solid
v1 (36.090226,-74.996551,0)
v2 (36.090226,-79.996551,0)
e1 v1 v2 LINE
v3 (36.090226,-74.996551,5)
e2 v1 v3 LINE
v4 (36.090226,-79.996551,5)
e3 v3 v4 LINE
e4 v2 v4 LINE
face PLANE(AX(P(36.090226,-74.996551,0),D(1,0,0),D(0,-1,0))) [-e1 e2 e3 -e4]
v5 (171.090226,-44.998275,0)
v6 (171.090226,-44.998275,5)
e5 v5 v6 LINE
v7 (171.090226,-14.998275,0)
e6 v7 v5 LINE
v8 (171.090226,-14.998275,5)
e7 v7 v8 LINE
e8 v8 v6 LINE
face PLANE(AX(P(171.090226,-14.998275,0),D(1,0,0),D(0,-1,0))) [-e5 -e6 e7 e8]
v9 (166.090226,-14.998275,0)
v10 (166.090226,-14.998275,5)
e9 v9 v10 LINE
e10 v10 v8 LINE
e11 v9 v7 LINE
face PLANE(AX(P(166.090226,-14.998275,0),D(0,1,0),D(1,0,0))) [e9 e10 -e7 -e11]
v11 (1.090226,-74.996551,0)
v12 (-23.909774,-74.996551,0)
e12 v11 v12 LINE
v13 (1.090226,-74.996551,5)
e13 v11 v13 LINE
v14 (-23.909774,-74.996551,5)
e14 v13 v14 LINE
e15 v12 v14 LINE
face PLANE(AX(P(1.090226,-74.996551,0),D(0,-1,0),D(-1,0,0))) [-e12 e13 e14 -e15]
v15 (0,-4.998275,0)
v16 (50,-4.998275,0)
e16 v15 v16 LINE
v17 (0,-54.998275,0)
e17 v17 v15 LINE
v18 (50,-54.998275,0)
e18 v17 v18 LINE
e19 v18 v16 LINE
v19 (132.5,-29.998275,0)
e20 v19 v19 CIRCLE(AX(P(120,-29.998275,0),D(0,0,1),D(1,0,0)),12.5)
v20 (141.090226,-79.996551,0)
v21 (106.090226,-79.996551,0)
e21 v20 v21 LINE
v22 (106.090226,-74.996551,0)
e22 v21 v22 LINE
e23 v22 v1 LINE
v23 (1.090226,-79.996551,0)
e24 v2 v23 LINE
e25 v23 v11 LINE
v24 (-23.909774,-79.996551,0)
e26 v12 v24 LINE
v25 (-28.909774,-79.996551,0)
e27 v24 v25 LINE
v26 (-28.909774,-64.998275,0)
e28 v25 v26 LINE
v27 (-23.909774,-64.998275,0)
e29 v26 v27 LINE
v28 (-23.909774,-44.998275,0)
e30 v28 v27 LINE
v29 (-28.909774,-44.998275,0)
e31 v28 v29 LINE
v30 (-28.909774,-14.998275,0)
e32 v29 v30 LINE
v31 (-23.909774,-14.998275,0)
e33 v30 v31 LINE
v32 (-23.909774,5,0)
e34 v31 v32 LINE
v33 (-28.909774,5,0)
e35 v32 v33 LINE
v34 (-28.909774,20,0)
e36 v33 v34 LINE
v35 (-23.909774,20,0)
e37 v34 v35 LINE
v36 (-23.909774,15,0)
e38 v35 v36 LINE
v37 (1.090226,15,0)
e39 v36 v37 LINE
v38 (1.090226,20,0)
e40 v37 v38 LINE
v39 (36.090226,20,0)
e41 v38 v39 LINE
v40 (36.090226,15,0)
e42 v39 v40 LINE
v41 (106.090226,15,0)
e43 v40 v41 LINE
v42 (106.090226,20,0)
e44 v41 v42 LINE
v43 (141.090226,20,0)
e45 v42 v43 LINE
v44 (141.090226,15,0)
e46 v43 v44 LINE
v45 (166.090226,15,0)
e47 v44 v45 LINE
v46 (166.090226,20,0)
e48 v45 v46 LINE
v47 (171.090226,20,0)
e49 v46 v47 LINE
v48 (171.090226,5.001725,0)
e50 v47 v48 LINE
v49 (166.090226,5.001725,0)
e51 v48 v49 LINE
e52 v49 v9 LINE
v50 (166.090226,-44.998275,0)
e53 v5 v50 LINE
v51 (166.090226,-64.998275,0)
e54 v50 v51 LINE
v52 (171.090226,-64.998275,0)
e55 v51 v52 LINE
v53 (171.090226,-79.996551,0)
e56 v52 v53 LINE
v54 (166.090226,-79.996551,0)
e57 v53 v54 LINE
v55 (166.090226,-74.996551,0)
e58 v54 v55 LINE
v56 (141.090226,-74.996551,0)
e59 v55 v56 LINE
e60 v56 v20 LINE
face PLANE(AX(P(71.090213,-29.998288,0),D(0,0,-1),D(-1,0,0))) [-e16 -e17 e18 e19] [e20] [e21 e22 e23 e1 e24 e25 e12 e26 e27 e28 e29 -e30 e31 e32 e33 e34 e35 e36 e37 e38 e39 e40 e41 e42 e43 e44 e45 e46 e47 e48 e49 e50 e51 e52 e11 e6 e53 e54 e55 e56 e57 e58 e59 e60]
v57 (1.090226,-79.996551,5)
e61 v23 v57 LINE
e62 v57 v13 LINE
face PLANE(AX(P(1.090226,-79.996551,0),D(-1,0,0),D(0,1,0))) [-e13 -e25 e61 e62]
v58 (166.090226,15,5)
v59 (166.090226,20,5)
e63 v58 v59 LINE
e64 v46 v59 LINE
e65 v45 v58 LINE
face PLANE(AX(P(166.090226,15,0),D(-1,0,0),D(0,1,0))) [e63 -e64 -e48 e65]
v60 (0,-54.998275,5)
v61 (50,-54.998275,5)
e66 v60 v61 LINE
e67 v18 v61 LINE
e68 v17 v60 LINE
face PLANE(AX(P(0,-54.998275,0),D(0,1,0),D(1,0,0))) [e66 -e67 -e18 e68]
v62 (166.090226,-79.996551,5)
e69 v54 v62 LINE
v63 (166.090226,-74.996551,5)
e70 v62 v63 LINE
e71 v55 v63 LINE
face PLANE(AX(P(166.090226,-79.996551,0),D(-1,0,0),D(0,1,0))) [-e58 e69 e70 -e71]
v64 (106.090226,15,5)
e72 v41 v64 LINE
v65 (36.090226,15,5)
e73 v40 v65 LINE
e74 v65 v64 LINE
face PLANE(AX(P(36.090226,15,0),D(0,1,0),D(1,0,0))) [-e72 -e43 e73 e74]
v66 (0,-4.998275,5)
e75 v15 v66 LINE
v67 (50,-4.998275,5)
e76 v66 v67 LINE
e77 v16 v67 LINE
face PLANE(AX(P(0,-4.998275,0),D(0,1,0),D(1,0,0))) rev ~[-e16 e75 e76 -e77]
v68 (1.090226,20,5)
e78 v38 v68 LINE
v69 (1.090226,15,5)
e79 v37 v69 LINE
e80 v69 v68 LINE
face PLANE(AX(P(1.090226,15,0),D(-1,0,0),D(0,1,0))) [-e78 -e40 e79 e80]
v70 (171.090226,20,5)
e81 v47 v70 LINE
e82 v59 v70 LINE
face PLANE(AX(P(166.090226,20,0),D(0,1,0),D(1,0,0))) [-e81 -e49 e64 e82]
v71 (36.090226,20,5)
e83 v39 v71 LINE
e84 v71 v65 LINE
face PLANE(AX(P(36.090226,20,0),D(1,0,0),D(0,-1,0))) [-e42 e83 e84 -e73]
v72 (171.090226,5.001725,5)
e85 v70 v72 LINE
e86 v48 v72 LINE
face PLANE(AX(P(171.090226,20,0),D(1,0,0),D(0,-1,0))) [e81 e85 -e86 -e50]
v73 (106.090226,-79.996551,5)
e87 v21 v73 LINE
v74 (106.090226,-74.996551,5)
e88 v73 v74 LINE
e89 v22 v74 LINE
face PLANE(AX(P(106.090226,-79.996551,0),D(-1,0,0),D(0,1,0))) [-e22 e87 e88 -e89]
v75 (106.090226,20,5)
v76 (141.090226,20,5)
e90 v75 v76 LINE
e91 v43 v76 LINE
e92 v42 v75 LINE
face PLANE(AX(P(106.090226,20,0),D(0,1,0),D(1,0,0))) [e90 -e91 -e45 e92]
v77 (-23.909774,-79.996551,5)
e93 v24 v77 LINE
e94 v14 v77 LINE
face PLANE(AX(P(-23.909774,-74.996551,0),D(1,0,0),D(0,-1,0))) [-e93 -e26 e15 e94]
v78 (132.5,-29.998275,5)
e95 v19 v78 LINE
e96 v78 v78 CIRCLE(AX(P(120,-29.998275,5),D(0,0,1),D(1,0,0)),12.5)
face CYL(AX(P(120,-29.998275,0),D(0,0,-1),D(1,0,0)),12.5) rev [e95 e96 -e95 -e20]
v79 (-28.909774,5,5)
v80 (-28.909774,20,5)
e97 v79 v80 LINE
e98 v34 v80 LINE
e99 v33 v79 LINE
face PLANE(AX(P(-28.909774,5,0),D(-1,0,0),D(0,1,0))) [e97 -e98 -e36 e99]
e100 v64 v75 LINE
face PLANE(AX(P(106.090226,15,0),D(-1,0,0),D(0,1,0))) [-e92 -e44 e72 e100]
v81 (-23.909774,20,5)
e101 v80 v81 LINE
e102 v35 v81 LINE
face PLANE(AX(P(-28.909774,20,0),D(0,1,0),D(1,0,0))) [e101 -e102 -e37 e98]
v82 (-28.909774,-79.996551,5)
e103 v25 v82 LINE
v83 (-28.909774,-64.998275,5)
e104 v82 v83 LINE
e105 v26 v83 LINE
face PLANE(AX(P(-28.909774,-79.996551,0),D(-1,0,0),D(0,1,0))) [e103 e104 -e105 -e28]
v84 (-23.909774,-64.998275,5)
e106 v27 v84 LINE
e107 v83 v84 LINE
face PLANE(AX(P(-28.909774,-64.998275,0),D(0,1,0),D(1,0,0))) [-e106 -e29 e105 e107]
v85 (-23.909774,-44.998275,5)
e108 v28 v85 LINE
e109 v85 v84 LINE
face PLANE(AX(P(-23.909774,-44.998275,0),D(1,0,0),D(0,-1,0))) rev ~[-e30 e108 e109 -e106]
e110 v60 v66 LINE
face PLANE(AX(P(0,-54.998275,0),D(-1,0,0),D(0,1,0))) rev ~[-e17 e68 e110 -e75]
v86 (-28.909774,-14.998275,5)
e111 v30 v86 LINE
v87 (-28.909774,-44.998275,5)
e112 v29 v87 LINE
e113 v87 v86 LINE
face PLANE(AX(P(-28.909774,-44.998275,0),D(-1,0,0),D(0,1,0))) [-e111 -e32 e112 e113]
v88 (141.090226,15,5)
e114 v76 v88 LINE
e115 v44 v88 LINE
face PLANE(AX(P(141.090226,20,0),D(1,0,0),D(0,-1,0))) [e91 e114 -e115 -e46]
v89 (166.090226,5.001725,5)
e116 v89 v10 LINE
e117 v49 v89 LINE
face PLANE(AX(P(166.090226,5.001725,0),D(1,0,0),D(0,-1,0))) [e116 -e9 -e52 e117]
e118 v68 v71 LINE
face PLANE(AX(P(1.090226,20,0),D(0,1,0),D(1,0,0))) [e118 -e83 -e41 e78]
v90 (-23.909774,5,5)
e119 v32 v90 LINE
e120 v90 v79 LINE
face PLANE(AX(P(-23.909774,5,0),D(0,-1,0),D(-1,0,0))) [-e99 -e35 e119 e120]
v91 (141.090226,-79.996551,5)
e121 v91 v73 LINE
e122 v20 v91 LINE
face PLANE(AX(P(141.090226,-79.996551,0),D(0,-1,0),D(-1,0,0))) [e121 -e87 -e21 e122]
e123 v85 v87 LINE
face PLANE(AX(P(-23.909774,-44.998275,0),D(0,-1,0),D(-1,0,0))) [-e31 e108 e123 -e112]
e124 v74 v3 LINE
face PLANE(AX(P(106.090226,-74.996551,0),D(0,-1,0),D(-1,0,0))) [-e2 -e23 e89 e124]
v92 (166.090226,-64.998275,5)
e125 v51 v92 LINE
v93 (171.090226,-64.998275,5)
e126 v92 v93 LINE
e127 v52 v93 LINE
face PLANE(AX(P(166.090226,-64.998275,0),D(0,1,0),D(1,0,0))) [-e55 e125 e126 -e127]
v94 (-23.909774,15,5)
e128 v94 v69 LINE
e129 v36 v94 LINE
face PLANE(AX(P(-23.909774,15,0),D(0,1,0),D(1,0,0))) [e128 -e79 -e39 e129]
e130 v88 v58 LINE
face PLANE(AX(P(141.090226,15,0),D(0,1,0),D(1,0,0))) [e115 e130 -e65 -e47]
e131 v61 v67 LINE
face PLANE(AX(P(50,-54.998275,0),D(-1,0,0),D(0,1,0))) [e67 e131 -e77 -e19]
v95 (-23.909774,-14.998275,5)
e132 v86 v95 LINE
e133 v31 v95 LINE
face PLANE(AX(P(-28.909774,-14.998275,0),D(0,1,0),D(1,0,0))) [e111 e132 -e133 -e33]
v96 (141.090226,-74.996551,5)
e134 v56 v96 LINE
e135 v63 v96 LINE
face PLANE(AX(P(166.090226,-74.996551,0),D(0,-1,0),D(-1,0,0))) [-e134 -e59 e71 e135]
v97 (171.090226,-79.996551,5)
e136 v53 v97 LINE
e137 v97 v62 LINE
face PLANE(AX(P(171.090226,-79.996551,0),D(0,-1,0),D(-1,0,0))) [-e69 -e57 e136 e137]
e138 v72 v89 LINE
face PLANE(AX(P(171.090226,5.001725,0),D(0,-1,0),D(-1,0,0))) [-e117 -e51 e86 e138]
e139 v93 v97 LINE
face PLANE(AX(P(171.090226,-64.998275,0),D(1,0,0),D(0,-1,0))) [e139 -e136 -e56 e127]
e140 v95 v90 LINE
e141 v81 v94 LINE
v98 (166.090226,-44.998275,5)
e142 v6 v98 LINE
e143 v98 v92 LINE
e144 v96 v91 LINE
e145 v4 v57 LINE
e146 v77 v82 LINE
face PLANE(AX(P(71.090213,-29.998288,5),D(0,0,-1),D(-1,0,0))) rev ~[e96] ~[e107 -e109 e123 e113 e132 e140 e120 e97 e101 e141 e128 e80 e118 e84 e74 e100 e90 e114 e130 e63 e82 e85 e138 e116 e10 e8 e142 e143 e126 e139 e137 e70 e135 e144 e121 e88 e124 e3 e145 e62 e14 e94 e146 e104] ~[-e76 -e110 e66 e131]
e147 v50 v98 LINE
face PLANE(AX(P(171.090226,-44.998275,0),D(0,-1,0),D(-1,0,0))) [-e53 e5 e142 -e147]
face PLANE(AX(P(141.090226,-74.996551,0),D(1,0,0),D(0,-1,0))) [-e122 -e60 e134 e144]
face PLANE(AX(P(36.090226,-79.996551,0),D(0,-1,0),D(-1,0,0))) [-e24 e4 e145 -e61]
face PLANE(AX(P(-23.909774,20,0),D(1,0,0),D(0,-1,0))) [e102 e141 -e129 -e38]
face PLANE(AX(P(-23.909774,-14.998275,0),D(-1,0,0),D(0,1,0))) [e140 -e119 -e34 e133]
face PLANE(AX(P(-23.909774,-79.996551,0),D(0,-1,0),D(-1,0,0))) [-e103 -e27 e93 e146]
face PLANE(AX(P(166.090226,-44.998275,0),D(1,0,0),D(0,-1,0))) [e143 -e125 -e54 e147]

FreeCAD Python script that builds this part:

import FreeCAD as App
import Part
import Sketcher

V = App.Vector

doc = App.newDocument("Part")
params = doc.addObject("Spreadsheet::Sheet", "Params")
for row, (alias, value) in enumerate([
    ("sketch1_diameter", "25 mm"),
    ("sketch1_width", "5 mm"),
    ("sketch1_width2", "25 mm"),
    ("sketch1_width3", "35 mm"),
    ("sketch1_width4", "70 mm"),
    ("pad1_length", "5 mm"),
], start=1):
    params.set(f"A{row}", alias)
    params.set(f"B{row}", "=" + value)
    params.setAlias(f"B{row}", alias)

body = doc.addObject("PartDesign::Body", "Body")

# Sketch on XY plane
sketch1 = body.newObject("Sketcher::SketchObject", "Sketch")
sketch1.AttachmentSupport = (doc.getObject("XY_Plane"), [""])
sketch1.MapMode = "FlatFace"
sketch1.addGeometry([
    Part.LineSegment(V(-24, 20, 0), V(-29, 20, 0)),  # 0
    Part.LineSegment(V(-29, 20, 0), V(-29, 5, 0)),  # 1
    Part.LineSegment(V(-29, 5, 0), V(-24, 5, 0)),  # 2
    Part.LineSegment(V(-24, 5, 0), V(-24, -15, 0)),  # 3
    Part.LineSegment(V(-24, -15, 0), V(-29, -15, 0)),  # 4
    Part.LineSegment(V(-29, -15, 0), V(-29, -45, 0)),  # 5
    Part.LineSegment(V(-29, -45, 0), V(-24, -45, 0)),  # 6
    Part.LineSegment(V(-24, -45, 0), V(-24, -65, 0)),  # 7
    Part.LineSegment(V(-24, -65, 0), V(-29, -65, 0)),  # 8
    Part.LineSegment(V(-29, -65, 0), V(-29, -80, 0)),  # 9
    Part.LineSegment(V(-29, -80, 0), V(-24, -80, 0)),  # 10
    Part.LineSegment(V(-24, -80, 0), V(-24, -75, 0)),  # 11
    Part.LineSegment(V(-24, -75, 0), V(1, -75, 0)),  # 12
    Part.LineSegment(V(1, -75, 0), V(1, -80, 0)),  # 13
    Part.LineSegment(V(1, -80, 0), V(36, -80, 0)),  # 14
    Part.LineSegment(V(36, -80, 0), V(36, -75, 0)),  # 15
    Part.LineSegment(V(36, -75, 0), V(106, -75, 0)),  # 16
    Part.LineSegment(V(106, -75, 0), V(106, -80, 0)),  # 17
    Part.LineSegment(V(106, -80, 0), V(141, -80, 0)),  # 18
    Part.LineSegment(V(141, -80, 0), V(141, -75, 0)),  # 19
    Part.LineSegment(V(141, -75, 0), V(166, -75, 0)),  # 20
    Part.LineSegment(V(166, -75, 0), V(166, -80, 0)),  # 21
    Part.LineSegment(V(166, -80, 0), V(171, -80, 0)),  # 22
    Part.LineSegment(V(171, -80, 0), V(171, -65, 0)),  # 23
    Part.LineSegment(V(171, -65, 0), V(166, -65, 0)),  # 24
    Part.LineSegment(V(166, -65, 0), V(166, -45, 0)),  # 25
    Part.LineSegment(V(166, -45, 0), V(171, -45, 0)),  # 26
    Part.LineSegment(V(171, -45, 0), V(171, -15, 0)),  # 27
    Part.LineSegment(V(171, -15, 0), V(166, -15, 0)),  # 28
    Part.LineSegment(V(166, -15, 0), V(166, 5, 0)),  # 29
    Part.LineSegment(V(166, 5, 0), V(171, 5, 0)),  # 30
    Part.LineSegment(V(171, 5, 0), V(171, 20, 0)),  # 31
    Part.LineSegment(V(171, 20, 0), V(166, 20, 0)),  # 32
    Part.LineSegment(V(166, 20, 0), V(166, 15, 0)),  # 33
    Part.LineSegment(V(166, 15, 0), V(141, 15, 0)),  # 34
    Part.LineSegment(V(141, 15, 0), V(141, 20, 0)),  # 35
    Part.LineSegment(V(141, 20, 0), V(106, 20, 0)),  # 36
    Part.LineSegment(V(106, 20, 0), V(106, 15, 0)),  # 37
    Part.LineSegment(V(106, 15, 0), V(36, 15, 0)),  # 38
    Part.LineSegment(V(36, 15, 0), V(36, 20, 0)),  # 39
    Part.LineSegment(V(36, 20, 0), V(1, 20, 0)),  # 40
    Part.LineSegment(V(1, 20, 0), V(1, 15, 0)),  # 41
    Part.LineSegment(V(1, 15, 0), V(-24, 15, 0)),  # 42
    Part.LineSegment(V(-24, 15, 0), V(-24, 20, 0)),  # 43
    Part.Circle(V(120, -30, 0), V(0, 0, 1), 12),  # 44
    Part.LineSegment(V(0, -55, 0), V(0, -5, 0)),  # 45
    Part.LineSegment(V(0, -5, 0), V(50, -5, 0)),  # 46
    Part.LineSegment(V(50, -5, 0), V(50, -55, 0)),  # 47
    Part.LineSegment(V(50, -55, 0), V(0, -55, 0)),  # 48
], False)
sketch1.addConstraint([
    Sketcher.Constraint("Coincident", 0, 2, 1, 1),
    Sketcher.Constraint("Coincident", 1, 2, 2, 1),
    Sketcher.Constraint("Coincident", 2, 2, 3, 1),
    Sketcher.Constraint("Coincident", 3, 2, 4, 1),
    Sketcher.Constraint("Coincident", 4, 2, 5, 1),
    Sketcher.Constraint("Coincident", 5, 2, 6, 1),
    Sketcher.Constraint("Coincident", 6, 2, 7, 1),
    Sketcher.Constraint("Coincident", 7, 2, 8, 1),
    Sketcher.Constraint("Coincident", 8, 2, 9, 1),
    Sketcher.Constraint("Coincident", 9, 2, 10, 1),
    Sketcher.Constraint("Coincident", 10, 2, 11, 1),
    Sketcher.Constraint("Coincident", 11, 2, 12, 1),
    Sketcher.Constraint("Coincident", 12, 2, 13, 1),
    Sketcher.Constraint("Coincident", 13, 2, 14, 1),
    Sketcher.Constraint("Coincident", 14, 2, 15, 1),
    Sketcher.Constraint("Coincident", 15, 2, 16, 1),
    Sketcher.Constraint("Coincident", 16, 2, 17, 1),
    Sketcher.Constraint("Coincident", 17, 2, 18, 1),
    Sketcher.Constraint("Coincident", 18, 2, 19, 1),
    Sketcher.Constraint("Coincident", 19, 2, 20, 1),
    Sketcher.Constraint("Coincident", 20, 2, 21, 1),
    Sketcher.Constraint("Coincident", 21, 2, 22, 1),
    Sketcher.Constraint("Coincident", 22, 2, 23, 1),
    Sketcher.Constraint("Coincident", 23, 2, 24, 1),
    Sketcher.Constraint("Coincident", 24, 2, 25, 1),
    Sketcher.Constraint("Coincident", 25, 2, 26, 1),
    Sketcher.Constraint("Coincident", 26, 2, 27, 1),
    Sketcher.Constraint("Coincident", 27, 2, 28, 1),
    Sketcher.Constraint("Coincident", 28, 2, 29, 1),
    Sketcher.Constraint("Coincident", 29, 2, 30, 1),
    Sketcher.Constraint("Coincident", 30, 2, 31, 1),
    Sketcher.Constraint("Coincident", 31, 2, 32, 1),
    Sketcher.Constraint("Coincident", 32, 2, 33, 1),
    Sketcher.Constraint("Coincident", 33, 2, 34, 1),
    Sketcher.Constraint("Coincident", 34, 2, 35, 1),
    Sketcher.Constraint("Coincident", 35, 2, 36, 1),
    Sketcher.Constraint("Coincident", 36, 2, 37, 1),
    Sketcher.Constraint("Coincident", 37, 2, 38, 1),
    Sketcher.Constraint("Coincident", 38, 2, 39, 1),
    Sketcher.Constraint("Coincident", 39, 2, 40, 1),
    Sketcher.Constraint("Coincident", 40, 2, 41, 1),
    Sketcher.Constraint("Coincident", 41, 2, 42, 1),
    Sketcher.Constraint("Coincident", 42, 2, 43, 1),
    Sketcher.Constraint("Coincident", 43, 2, 0, 1),
    Sketcher.Constraint("Coincident", 45, 2, 46, 1),
    Sketcher.Constraint("Coincident", 46, 2, 47, 1),
    Sketcher.Constraint("Coincident", 47, 2, 48, 1),
    Sketcher.Constraint("Coincident", 48, 2, 45, 1),
    Sketcher.Constraint("Horizontal", 0),
    Sketcher.Constraint("Vertical", 1),
    Sketcher.Constraint("Horizontal", 2),
    Sketcher.Constraint("Vertical", 3),
    Sketcher.Constraint("Horizontal", 4),
    Sketcher.Constraint("Vertical", 5),
    Sketcher.Constraint("Horizontal", 6),
    Sketcher.Constraint("Vertical", 7),
    Sketcher.Constraint("Horizontal", 8),
    Sketcher.Constraint("Vertical", 9),
    Sketcher.Constraint("Horizontal", 10),
    Sketcher.Constraint("Vertical", 11),
    Sketcher.Constraint("Horizontal", 12),
    Sketcher.Constraint("Vertical", 13),
    Sketcher.Constraint("Horizontal", 14),
    Sketcher.Constraint("Vertical", 15),
    Sketcher.Constraint("Horizontal", 16),
    Sketcher.Constraint("Vertical", 17),
    Sketcher.Constraint("Horizontal", 18),
    Sketcher.Constraint("Vertical", 19),
    Sketcher.Constraint("Horizontal", 20),
    Sketcher.Constraint("Vertical", 21),
    Sketcher.Constraint("Horizontal", 22),
    Sketcher.Constraint("Vertical", 23),
    Sketcher.Constraint("Horizontal", 24),
    Sketcher.Constraint("Vertical", 25),
    Sketcher.Constraint("Horizontal", 26),
    Sketcher.Constraint("Vertical", 27),
    Sketcher.Constraint("Horizontal", 28),
    Sketcher.Constraint("Vertical", 29),
    Sketcher.Constraint("Horizontal", 30),
    Sketcher.Constraint("Vertical", 31),
    Sketcher.Constraint("Horizontal", 32),
    Sketcher.Constraint("Vertical", 33),
    Sketcher.Constraint("Horizontal", 34),
    Sketcher.Constraint("Vertical", 35),
    Sketcher.Constraint("Horizontal", 36),
    Sketcher.Constraint("Vertical", 37),
    Sketcher.Constraint("Horizontal", 38),
    Sketcher.Constraint("Vertical", 39),
    Sketcher.Constraint("Horizontal", 40),
    Sketcher.Constraint("Vertical", 41),
    Sketcher.Constraint("Horizontal", 42),
    Sketcher.Constraint("Vertical", 43),
    Sketcher.Constraint("Vertical", 45),
    Sketcher.Constraint("Horizontal", 46),
    Sketcher.Constraint("Vertical", 47),
    Sketcher.Constraint("Horizontal", 48),
    Sketcher.Constraint("PointOnObject", 45, 2, -2),
    Sketcher.Constraint("Horizontal", 10, 2, 13, 2),
    Sketcher.Constraint("Horizontal", 12, 2, 15, 2),
    Sketcher.Constraint("Horizontal", 14, 2, 17, 2),
    Sketcher.Constraint("Horizontal", 16, 2, 19, 2),
    Sketcher.Constraint("Horizontal", 18, 2, 21, 2),
    Sketcher.Constraint("Horizontal", 8, 2, 23, 2),
    Sketcher.Constraint("Horizontal", 6, 2, 25, 2),
    Sketcher.Constraint("Horizontal", 4, 2, 27, 2),
    Sketcher.Constraint("Horizontal", 0, 2, 31, 2),
    Sketcher.Constraint("Horizontal", 32, 2, 35, 2),
    Sketcher.Constraint("Horizontal", 34, 2, 37, 2),
    Sketcher.Constraint("Horizontal", 36, 2, 39, 2),
    Sketcher.Constraint("Horizontal", 38, 2, 41, 2),
    Sketcher.Constraint("Vertical", 1, 2, 4, 2),
    Sketcher.Constraint("Vertical", 3, 2, 6, 2),
    Sketcher.Constraint("Vertical", 5, 2, 8, 2),
    Sketcher.Constraint("Vertical", 7, 2, 10, 2),
    Sketcher.Constraint("Vertical", 21, 2, 24, 2),
    Sketcher.Constraint("Vertical", 23, 2, 26, 2),
    Sketcher.Constraint("Vertical", 25, 2, 28, 2),
    Sketcher.Constraint("Vertical", 27, 2, 30, 2),
    Sketcher.Constraint("Vertical", 29, 2, 32, 2),
    Sketcher.Constraint("Vertical", 19, 2, 34, 2),
    Sketcher.Constraint("Vertical", 17, 2, 36, 2),
    Sketcher.Constraint("Vertical", 15, 2, 38, 2),
    Sketcher.Constraint("Vertical", 13, 2, 40, 2),
    Sketcher.Constraint("Vertical", 11, 2, 42, 2),
    Sketcher.Constraint("Equal", 14, 18),
    Sketcher.Constraint("Equal", 12, 20),
    Sketcher.Constraint("Equal", 10, 22),
    Sketcher.Constraint("Equal", 32, 11),
    Sketcher.Constraint("Equal", 25, 29),
    Sketcher.Constraint("Equal", 23, 31),
    Sketcher.Constraint("Equal", 21, 33),
    Sketcher.Constraint("Equal", 48, 45),
    Sketcher.Constraint("Diameter", 44, 25.0),
    Sketcher.Constraint("DistanceX", 0, 2, 0, 1, 5.0),
    Sketcher.Constraint("DistanceX", 12, 1, 12, 2, 25.0),
    Sketcher.Constraint("DistanceX", 14, 1, 14, 2, 35.0),
    Sketcher.Constraint("DistanceX", 16, 1, 16, 2, 70.0),
    Sketcher.Constraint("DistanceX", 46, 1, 46, 2, 50.0),
    Sketcher.Constraint("DistanceY", 1, 2, 1, 1, 15.0),
    Sketcher.Constraint("DistanceY", 5, 2, 5, 1, 30.0),
    Sketcher.Constraint("DistanceY", 7, 2, 7, 1, 20.0),
    Sketcher.Constraint("DistanceX", -1, 1, 44, 3, 120.0),
    Sketcher.Constraint("DistanceY", -1, 1, 0, 2, 20.0),
    Sketcher.Constraint("DistanceY", 44, 3, 3, 2, 15.0),
    Sketcher.Constraint("DistanceY", 3, 2, 45, 2, 10.0),
    Sketcher.Constraint("DistanceY", 3, 2, 3, 1, 19.998275),
    Sketcher.Constraint("DistanceX", 0, 2, -1, 1, 28.909774),
])
sketch1.setExpression("Constraints[132]", "Params.sketch1_diameter")
sketch1.setExpression("Constraints[133]", "Params.sketch1_width")
sketch1.setExpression("Constraints[134]", "Params.sketch1_width2")
sketch1.setExpression("Constraints[135]", "Params.sketch1_width3")
sketch1.setExpression("Constraints[136]", "Params.sketch1_width4")
pad1 = body.newObject("PartDesign::Pad", "Pad")
pad1.Profile = sketch1
pad1.setExpression("Length", "Params.pad1_length")

doc.recompute()
